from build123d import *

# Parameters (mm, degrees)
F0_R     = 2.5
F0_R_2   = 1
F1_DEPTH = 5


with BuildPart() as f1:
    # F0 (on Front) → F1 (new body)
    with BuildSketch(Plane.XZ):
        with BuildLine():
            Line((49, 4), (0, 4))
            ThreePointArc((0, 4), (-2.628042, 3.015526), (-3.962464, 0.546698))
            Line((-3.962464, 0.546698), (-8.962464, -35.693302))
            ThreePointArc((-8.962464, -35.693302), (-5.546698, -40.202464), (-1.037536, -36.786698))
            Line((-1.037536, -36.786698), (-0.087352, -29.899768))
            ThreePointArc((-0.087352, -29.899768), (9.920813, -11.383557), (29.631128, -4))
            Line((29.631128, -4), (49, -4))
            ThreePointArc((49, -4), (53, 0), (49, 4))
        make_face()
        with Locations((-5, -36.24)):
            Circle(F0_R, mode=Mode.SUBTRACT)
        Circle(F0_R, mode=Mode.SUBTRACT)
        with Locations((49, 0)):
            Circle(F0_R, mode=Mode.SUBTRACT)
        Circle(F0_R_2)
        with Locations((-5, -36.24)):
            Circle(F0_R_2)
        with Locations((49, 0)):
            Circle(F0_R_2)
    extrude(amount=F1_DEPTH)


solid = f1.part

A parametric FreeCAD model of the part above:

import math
import FreeCAD as App
import Part
import Sketcher

V = App.Vector
Q = App.Units.Quantity

doc = App.newDocument("Part")
body = doc.addObject("PartDesign::Body", "Body")
body.AllowCompound = True

# Sketch on XZ plane
sketch1 = body.newObject("Sketcher::SketchObject", "Sketch")
sketch1.AttachmentSupport = (doc.getObject("XZ_Plane"), [""])
sketch1.MapMode = "FlatFace"
sketch1.addGeometry(Part.LineSegment(V(49, 4, 0), V(0, 4, 0)), False)
sketch1.addGeometry(Part.ArcOfCircle(Part.Circle(V(0, 0, 0), V(0, 0, 1), 4), math.radians(90), math.radians(172)), False)
sketch1.addGeometry(Part.LineSegment(V(-4, 0.5, 0), V(-9, -35.7, 0)), False)
sketch1.addGeometry(Part.ArcOfCircle(Part.Circle(V(-5, -36.2, 0), V(0, 0, 1), 4), math.radians(172), math.radians(352)), False)
sketch1.addGeometry(Part.LineSegment(V(-1, -36.8, 0), V(-0.1, -29.9, 0)), False)
sketch1.addGeometry(Part.ArcOfCircle(Part.Circle(V(29.6, -34, 0), V(0, 0, 1), 30), math.radians(90), math.radians(172)), False)
sketch1.addGeometry(Part.LineSegment(V(29.6, -4, 0), V(49, -4, 0)), False)
sketch1.addGeometry(Part.ArcOfCircle(Part.Circle(V(49, 0, 0), V(0, 0, 1), 4), math.radians(-90), math.radians(90)), False)
sketch1.addGeometry(Part.Circle(V(-5, -36.2, 0), V(0, 0, 1), 2.5), False)
sketch1.addGeometry(Part.Circle(V(0, 0, 0), V(0, 0, 1), 2.5), False)
sketch1.addGeometry(Part.Circle(V(49, 0, 0), V(0, 0, 1), 2.5), False)
sketch1.addGeometry(Part.Circle(V(0, 0, 0), V(0, 0, 1), 1), False)
sketch1.addGeometry(Part.Circle(V(-5, -36.2, 0), V(0, 0, 1), 1), False)
sketch1.addGeometry(Part.Circle(V(49, 0, 0), V(0, 0, 1), 1), False)
sketch1.addConstraint(Sketcher.Constraint("Tangent", 0, 2, 1, 1))
sketch1.addConstraint(Sketcher.Constraint("Tangent", 1, 2, 2, 1))
sketch1.addConstraint(Sketcher.Constraint("Tangent", 2, 2, 3, 1))
sketch1.addConstraint(Sketcher.Constraint("Tangent", 3, 2, 4, 1))
sketch1.addConstraint(Sketcher.Constraint("Tangent", 4, 2, 5, 2))
sketch1.addConstraint(Sketcher.Constraint("Tangent", 5, 1, 6, 1))
sketch1.addConstraint(Sketcher.Constraint("Tangent", 6, 2, 7, 1))
sketch1.addConstraint(Sketcher.Constraint("Tangent", 7, 2, 0, 1))
sketch1.addConstraint(Sketcher.Constraint("Horizontal", 0))
sketch1.addConstraint(Sketcher.Constraint("Horizontal", 6))
sketch1.addConstraint(Sketcher.Constraint("Coincident", 1, 3, -1, 1))
sketch1.addConstraint(Sketcher.Constraint("Coincident", 9, 3, -1, 1))
sketch1.addConstraint(Sketcher.Constraint("Coincident", 11, 3, -1, 1))
sketch1.addConstraint(Sketcher.Constraint("Coincident", 8, 3, 3, 3))
sketch1.addConstraint(Sketcher.Constraint("Coincident", 10, 3, 7, 3))
sketch1.addConstraint(Sketcher.Constraint("Coincident", 12, 3, 3, 3))
sketch1.addConstraint(Sketcher.Constraint("Coincident", 13, 3, 7, 3))
sketch1.addConstraint(Sketcher.Constraint("Equal", 1, 3))
sketch1.addConstraint(Sketcher.Constraint("Equal", 3, 7))
sketch1.addConstraint(Sketcher.Constraint("Equal", 8, 9))
sketch1.addConstraint(Sketcher.Constraint("Equal", 9, 10))
sketch1.addConstraint(Sketcher.Constraint("Equal", 11, 12))
sketch1.addConstraint(Sketcher.Constraint("Equal", 12, 13))
sketch1.addConstraint(Sketcher.Constraint("Parallel", 2, 4))
sketch1.addConstraint(Sketcher.Constraint("Diameter", 8, Q("5 mm")))
sketch1.addConstraint(Sketcher.Constraint("Diameter", 11, Q("2 mm")))
sketch1.addConstraint(Sketcher.Constraint("Radius", 1, Q("3.999999 mm")))
sketch1.addConstraint(Sketcher.Constraint("DistanceX", 0, 2, 0, 1, Q("49 mm")))
sketch1.addConstraint(Sketcher.Constraint("DistanceX", 3, 3, -1, 1, Q("5 mm")))
sketch1.addConstraint(Sketcher.Constraint("DistanceY", 5, 3, 1, 3, Q("33.999999 mm")))
sketch1.addConstraint(Sketcher.Constraint("DistanceY", 3, 3, -1, 1, Q("36.24 mm")))
pad1 = body.newObject("PartDesign::Pad", "Pad")
pad1.Profile = sketch1
pad1.Length = 5

doc.recompute()
